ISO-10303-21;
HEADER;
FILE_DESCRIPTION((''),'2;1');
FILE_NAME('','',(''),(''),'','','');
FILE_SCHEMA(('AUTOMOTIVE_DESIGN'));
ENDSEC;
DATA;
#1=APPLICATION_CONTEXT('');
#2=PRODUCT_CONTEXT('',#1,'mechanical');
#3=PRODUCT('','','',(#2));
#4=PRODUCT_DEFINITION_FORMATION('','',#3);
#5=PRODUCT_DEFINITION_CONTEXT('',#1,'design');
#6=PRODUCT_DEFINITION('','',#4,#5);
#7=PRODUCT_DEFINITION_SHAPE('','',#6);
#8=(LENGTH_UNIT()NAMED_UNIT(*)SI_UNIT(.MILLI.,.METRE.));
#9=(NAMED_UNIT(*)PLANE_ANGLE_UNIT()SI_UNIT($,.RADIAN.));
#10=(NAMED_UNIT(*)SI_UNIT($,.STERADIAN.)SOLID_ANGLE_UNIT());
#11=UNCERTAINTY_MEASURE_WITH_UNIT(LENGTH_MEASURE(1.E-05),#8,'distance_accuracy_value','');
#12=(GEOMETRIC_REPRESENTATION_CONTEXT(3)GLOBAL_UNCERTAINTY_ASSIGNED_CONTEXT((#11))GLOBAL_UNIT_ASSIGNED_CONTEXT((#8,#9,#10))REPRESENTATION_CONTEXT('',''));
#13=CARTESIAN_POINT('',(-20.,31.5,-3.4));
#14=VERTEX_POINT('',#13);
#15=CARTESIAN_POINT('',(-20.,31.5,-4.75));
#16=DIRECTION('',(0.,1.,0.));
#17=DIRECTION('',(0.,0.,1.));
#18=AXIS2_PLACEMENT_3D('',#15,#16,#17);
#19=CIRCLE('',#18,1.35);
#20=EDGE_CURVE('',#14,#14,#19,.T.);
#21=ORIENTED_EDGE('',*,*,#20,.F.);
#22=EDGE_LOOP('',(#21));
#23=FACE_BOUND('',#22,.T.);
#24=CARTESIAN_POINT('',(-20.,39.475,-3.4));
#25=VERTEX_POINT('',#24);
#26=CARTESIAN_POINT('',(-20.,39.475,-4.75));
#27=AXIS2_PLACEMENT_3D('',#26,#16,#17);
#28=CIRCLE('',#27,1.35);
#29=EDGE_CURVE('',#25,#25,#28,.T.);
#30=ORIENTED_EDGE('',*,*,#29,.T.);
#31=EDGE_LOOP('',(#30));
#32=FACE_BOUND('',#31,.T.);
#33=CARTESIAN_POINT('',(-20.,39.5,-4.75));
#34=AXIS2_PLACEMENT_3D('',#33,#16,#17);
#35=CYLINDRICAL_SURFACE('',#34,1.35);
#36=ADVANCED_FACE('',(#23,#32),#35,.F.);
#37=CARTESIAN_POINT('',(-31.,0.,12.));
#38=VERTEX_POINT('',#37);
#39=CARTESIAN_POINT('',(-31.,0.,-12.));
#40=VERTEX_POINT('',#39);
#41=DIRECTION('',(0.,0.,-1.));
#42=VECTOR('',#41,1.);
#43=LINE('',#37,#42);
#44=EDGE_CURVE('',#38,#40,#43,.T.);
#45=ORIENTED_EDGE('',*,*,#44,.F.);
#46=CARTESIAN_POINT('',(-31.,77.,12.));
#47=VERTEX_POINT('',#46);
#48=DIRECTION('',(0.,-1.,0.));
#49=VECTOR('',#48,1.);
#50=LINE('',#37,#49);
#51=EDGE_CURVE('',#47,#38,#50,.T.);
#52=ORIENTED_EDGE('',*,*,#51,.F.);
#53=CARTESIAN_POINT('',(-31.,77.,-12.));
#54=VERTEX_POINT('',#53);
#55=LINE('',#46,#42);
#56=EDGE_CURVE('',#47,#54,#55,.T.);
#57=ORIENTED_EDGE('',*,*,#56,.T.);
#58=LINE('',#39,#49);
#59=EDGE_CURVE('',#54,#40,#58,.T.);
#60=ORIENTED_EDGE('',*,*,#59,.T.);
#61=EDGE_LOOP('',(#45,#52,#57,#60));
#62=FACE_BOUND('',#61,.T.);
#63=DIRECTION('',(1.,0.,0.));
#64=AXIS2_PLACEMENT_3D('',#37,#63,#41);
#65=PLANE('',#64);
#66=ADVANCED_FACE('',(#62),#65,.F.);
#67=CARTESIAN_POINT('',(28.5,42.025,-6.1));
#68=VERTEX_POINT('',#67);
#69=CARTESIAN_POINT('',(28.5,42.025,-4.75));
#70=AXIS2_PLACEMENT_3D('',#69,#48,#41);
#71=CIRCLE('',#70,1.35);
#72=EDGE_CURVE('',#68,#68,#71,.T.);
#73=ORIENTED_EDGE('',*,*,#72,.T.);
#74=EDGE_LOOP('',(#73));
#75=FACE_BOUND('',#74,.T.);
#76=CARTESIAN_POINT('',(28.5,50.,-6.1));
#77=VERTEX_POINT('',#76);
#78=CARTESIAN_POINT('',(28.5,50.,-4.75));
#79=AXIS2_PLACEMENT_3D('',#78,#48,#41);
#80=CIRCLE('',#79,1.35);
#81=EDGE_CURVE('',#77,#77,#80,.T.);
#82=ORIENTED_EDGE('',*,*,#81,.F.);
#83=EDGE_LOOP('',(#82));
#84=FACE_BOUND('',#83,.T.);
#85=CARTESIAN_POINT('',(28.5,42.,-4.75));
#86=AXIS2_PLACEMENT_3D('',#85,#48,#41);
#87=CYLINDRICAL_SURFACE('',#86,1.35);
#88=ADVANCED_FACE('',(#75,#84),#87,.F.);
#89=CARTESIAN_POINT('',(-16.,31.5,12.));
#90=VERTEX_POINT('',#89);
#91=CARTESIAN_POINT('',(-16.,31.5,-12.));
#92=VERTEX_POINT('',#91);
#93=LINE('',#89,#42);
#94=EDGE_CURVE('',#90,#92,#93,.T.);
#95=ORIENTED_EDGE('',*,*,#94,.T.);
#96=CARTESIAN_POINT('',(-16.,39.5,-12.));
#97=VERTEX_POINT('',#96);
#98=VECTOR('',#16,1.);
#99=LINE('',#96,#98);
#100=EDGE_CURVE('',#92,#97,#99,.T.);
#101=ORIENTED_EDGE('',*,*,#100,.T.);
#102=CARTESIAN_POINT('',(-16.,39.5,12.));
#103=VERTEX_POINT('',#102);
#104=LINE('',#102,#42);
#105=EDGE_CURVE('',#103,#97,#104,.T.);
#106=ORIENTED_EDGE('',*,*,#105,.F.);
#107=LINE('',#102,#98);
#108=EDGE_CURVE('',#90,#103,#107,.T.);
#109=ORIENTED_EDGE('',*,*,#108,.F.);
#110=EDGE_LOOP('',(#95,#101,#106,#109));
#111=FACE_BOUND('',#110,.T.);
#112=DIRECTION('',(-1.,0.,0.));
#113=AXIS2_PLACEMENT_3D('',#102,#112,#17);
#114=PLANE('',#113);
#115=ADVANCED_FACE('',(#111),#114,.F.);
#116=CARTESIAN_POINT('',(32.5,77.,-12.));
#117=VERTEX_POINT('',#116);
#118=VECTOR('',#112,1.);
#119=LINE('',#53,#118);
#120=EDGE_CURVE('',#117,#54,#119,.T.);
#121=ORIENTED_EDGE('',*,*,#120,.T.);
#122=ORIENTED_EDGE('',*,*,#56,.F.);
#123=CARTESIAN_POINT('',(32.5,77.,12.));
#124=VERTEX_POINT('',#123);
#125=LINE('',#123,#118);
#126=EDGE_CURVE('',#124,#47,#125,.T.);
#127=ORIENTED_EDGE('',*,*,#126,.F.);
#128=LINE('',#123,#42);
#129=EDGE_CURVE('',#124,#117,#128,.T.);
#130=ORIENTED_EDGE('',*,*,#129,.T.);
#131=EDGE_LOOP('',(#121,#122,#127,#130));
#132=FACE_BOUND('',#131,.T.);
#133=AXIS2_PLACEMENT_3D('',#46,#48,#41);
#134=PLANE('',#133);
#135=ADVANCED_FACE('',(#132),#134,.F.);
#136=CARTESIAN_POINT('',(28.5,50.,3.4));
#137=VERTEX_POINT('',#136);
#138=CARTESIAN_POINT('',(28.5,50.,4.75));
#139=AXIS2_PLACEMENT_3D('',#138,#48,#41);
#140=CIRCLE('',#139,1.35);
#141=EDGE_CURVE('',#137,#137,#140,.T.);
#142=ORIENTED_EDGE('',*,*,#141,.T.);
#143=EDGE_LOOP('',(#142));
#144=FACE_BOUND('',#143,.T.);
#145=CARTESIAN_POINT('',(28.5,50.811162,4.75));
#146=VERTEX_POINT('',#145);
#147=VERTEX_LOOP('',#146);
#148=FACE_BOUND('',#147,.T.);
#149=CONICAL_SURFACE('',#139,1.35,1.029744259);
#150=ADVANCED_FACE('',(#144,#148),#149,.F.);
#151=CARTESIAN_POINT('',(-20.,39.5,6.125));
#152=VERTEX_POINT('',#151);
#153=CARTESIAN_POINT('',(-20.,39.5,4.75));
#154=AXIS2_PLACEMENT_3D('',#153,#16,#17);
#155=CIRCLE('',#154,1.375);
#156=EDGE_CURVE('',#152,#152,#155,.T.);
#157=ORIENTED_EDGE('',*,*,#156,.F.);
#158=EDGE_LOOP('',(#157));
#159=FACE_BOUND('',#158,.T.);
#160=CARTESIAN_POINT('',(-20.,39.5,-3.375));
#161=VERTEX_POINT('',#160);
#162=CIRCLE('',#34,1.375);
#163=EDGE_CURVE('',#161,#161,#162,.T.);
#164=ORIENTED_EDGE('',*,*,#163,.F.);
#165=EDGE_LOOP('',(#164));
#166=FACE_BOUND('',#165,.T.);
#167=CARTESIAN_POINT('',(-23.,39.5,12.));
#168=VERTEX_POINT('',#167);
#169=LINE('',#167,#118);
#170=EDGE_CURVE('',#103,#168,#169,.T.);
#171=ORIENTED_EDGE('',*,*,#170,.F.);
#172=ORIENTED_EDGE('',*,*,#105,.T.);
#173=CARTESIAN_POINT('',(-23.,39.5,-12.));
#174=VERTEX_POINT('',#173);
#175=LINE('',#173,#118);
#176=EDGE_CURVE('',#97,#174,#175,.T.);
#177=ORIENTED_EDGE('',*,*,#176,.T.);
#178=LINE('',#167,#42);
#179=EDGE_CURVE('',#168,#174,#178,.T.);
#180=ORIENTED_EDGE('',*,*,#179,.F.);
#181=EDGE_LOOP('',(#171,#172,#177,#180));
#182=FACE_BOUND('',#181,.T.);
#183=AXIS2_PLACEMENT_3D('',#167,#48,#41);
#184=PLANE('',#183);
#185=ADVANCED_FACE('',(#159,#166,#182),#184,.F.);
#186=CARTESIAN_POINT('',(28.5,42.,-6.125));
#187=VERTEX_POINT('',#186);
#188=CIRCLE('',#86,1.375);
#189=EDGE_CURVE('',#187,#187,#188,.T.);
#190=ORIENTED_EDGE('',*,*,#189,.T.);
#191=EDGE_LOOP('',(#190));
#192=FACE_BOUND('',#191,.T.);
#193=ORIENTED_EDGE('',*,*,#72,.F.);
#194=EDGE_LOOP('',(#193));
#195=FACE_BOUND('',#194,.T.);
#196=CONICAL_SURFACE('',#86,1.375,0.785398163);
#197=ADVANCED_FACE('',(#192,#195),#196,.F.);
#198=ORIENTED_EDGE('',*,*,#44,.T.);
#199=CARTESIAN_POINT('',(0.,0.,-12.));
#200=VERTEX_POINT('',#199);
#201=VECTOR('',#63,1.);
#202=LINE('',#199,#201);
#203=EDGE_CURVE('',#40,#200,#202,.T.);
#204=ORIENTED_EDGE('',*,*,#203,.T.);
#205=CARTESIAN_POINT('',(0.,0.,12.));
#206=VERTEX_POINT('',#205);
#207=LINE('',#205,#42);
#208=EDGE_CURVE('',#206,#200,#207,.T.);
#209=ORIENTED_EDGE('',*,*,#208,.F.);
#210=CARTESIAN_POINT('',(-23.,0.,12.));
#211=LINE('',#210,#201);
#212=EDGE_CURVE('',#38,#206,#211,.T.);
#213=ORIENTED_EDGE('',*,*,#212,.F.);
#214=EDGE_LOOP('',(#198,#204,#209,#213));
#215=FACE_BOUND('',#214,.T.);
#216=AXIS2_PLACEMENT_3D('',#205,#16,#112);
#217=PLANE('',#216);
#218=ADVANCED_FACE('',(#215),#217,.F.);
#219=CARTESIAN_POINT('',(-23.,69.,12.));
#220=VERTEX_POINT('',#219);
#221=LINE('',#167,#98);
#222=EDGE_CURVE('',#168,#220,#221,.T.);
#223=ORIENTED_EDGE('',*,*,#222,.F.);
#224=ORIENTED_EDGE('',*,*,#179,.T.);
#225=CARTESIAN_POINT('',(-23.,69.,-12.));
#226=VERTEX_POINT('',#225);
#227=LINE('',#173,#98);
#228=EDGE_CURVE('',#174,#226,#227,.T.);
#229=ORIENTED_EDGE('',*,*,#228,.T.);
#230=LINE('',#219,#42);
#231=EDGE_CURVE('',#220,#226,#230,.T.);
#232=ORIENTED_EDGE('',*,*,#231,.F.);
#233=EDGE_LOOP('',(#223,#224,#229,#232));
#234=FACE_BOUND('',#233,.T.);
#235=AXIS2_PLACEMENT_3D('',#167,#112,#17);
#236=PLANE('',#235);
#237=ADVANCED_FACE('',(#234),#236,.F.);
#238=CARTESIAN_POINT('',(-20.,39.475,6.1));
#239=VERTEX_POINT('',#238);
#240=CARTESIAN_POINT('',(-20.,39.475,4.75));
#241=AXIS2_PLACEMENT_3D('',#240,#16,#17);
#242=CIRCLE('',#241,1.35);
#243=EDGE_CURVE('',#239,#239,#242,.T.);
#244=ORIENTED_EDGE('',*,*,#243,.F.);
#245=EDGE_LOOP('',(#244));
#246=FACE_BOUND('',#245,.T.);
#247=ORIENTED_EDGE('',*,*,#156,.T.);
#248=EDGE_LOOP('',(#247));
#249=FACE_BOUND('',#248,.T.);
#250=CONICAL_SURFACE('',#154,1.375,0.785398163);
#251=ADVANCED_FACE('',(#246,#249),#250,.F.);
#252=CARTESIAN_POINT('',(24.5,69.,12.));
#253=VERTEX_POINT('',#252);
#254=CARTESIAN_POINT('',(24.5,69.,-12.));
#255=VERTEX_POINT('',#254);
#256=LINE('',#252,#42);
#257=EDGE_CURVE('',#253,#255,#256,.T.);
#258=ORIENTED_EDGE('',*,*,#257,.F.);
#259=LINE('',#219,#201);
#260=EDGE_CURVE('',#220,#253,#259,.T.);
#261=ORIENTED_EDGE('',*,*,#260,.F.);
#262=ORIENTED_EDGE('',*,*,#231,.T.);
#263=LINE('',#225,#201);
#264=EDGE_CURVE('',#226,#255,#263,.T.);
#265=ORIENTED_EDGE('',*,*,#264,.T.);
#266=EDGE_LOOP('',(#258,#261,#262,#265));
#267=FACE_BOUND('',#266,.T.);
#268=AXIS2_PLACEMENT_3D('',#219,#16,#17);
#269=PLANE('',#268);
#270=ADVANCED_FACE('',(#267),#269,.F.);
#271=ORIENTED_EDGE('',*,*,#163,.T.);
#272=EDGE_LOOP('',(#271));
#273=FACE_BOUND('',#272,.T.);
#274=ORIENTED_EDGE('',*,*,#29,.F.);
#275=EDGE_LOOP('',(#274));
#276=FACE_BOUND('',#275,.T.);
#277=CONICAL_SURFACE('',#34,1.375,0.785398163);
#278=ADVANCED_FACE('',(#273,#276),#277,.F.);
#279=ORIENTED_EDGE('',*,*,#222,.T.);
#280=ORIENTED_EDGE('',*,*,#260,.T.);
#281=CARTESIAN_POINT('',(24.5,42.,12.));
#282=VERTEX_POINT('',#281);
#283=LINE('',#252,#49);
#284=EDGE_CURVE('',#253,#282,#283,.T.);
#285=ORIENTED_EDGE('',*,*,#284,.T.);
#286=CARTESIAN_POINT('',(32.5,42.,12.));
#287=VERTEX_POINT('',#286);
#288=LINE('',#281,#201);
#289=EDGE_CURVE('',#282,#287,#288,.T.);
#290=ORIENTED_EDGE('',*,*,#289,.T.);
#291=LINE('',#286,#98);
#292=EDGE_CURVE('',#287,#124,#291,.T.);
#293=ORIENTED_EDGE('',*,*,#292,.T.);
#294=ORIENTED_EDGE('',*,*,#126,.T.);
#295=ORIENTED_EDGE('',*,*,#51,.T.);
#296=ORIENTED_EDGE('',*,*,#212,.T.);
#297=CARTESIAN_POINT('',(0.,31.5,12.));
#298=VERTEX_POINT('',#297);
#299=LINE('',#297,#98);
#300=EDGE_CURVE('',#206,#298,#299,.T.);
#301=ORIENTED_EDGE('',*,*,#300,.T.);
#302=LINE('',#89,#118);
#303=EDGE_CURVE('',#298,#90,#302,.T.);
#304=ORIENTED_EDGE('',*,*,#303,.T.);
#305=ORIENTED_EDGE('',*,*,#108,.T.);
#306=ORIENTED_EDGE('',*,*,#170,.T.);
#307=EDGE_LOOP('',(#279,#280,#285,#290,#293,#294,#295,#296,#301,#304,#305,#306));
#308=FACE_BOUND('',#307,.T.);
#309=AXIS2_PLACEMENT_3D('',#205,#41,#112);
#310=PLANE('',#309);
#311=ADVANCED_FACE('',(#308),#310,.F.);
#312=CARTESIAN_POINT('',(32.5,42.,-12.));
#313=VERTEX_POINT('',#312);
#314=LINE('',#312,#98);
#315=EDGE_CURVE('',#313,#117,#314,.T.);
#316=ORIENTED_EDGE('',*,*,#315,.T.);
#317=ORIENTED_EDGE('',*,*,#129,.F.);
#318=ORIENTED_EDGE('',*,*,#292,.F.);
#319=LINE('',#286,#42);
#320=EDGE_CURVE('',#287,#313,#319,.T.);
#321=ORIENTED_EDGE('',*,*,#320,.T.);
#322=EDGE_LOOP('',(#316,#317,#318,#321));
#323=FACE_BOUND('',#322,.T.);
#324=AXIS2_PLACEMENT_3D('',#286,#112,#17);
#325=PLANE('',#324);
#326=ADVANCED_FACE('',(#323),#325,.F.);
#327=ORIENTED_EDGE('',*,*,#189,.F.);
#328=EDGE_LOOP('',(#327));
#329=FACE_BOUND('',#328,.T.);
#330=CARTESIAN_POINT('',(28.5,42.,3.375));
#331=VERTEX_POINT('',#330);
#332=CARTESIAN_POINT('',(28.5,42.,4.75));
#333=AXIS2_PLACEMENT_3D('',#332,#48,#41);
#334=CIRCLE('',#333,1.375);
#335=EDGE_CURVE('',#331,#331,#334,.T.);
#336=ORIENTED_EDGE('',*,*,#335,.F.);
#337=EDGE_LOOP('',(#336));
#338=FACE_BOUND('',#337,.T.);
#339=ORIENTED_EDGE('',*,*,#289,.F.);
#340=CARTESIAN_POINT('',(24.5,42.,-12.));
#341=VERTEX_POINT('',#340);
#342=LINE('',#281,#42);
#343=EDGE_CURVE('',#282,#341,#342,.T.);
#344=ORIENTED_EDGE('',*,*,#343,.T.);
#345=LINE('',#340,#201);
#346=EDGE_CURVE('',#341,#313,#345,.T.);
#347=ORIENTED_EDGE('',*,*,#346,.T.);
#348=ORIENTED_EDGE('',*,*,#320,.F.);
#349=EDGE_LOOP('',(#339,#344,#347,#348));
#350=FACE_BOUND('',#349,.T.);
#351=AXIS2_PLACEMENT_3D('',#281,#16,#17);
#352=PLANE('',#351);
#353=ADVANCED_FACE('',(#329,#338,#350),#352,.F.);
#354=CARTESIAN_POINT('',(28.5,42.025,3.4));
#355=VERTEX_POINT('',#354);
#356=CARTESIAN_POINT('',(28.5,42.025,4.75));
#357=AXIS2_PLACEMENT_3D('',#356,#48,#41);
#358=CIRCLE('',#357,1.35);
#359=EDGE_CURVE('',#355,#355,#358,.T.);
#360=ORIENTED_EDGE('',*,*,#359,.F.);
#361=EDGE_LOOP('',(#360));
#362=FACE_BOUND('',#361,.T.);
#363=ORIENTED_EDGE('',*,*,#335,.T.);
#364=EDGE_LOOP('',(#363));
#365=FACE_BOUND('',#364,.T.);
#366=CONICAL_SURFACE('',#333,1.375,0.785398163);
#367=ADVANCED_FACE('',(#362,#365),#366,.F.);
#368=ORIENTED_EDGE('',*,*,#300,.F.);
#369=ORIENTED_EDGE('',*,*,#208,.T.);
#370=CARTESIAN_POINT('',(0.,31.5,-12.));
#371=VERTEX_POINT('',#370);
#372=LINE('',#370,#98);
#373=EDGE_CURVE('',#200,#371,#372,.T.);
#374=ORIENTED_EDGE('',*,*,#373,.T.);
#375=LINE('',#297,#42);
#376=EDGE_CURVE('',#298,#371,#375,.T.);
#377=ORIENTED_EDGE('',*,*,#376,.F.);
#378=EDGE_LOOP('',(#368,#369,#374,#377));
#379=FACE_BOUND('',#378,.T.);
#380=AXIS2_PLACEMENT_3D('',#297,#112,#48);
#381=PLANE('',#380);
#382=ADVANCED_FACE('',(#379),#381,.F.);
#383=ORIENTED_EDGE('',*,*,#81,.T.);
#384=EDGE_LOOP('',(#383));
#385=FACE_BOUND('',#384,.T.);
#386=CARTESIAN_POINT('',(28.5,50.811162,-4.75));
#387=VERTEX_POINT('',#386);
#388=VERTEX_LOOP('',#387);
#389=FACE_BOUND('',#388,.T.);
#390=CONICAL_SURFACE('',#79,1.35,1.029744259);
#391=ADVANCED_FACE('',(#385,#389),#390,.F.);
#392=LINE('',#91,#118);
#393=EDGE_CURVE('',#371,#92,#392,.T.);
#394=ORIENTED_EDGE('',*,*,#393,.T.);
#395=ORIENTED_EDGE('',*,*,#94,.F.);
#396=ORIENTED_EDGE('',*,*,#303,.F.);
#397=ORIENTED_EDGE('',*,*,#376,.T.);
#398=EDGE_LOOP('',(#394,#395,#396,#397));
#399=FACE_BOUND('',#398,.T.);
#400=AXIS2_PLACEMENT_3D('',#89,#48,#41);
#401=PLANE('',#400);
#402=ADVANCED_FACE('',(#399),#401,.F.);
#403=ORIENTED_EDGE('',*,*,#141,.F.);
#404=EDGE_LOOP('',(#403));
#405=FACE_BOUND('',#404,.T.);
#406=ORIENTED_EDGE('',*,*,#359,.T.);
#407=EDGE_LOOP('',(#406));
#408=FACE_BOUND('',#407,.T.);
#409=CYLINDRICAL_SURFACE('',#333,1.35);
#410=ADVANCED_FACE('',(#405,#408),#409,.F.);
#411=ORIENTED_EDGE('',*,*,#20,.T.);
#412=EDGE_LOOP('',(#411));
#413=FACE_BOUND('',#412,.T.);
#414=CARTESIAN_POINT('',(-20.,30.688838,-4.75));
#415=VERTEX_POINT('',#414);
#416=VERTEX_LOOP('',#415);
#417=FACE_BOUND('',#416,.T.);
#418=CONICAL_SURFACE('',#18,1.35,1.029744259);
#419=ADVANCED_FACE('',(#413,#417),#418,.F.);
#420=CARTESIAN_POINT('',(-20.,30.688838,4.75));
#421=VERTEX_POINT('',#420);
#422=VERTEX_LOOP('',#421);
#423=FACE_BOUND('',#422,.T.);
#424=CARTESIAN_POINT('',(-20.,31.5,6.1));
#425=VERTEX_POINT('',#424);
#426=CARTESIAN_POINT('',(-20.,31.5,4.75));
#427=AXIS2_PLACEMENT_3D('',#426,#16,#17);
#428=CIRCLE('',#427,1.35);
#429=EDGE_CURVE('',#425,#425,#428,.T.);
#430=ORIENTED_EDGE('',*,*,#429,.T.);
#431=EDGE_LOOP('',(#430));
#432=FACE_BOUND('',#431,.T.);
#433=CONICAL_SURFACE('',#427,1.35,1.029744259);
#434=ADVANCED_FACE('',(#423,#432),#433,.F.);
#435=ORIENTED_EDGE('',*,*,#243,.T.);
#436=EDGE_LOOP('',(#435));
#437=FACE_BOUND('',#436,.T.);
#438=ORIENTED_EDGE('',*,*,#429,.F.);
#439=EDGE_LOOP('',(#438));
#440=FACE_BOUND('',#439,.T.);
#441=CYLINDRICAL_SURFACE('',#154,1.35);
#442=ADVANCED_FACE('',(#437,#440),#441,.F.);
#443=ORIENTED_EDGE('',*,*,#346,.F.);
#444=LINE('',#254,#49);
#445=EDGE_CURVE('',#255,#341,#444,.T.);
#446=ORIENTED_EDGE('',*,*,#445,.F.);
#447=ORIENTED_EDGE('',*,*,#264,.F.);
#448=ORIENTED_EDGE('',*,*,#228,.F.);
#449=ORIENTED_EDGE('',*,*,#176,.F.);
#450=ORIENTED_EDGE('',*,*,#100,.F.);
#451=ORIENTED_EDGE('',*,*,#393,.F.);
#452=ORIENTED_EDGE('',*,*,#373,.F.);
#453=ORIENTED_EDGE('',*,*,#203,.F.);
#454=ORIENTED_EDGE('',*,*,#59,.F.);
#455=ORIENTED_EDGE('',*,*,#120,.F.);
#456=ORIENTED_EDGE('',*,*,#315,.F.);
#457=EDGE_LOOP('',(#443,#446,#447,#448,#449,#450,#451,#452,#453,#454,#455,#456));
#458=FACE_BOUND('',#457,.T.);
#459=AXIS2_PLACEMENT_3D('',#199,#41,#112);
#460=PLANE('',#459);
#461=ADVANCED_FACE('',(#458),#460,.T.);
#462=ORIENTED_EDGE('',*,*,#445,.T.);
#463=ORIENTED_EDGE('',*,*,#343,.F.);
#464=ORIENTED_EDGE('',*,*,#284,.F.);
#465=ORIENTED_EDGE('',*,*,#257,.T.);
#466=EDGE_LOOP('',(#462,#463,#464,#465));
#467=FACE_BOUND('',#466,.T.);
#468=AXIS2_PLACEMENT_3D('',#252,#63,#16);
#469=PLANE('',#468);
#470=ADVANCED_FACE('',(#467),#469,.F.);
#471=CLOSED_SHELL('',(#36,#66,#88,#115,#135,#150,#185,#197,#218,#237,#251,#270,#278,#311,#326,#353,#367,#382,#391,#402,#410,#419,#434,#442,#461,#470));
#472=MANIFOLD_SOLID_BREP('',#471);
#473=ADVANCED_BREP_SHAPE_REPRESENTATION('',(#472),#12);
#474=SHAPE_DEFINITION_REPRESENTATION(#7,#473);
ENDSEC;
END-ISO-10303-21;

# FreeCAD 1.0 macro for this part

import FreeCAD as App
import Part
import Sketcher

V = App.Vector
Q = App.Units.Quantity

doc = App.newDocument("Part")
body = doc.addObject("PartDesign::Body", "Body")

sketch1 = body.newObject("Sketcher::SketchObject", "Sketch")
sketch1.AttachmentSupport = (doc.getObject("XY_Plane"), [""])
sketch1.MapMode = "FlatFace"
sketch1.addGeometry([
    Part.LineSegment(V(-31, 0, 0), V(0, 0, 0)),
    Part.LineSegment(V(0, 0, 0), V(0, 32, 0)),
    Part.LineSegment(V(0, 32, 0), V(-16, 32, 0)),
    Part.LineSegment(V(-16, 32, 0), V(-16, 40, 0)),
    Part.LineSegment(V(-16, 40, 0), V(-23, 40, 0)),
    Part.LineSegment(V(-23, 40, 0), V(-23, 69, 0)),
    Part.LineSegment(V(-23, 69, 0), V(24, 69, 0)),
    Part.LineSegment(V(24, 69, 0), V(24, 42, 0)),
    Part.LineSegment(V(24, 42, 0), V(32, 42, 0)),
    Part.LineSegment(V(32, 42, 0), V(32, 77, 0)),
    Part.LineSegment(V(32, 77, 0), V(-31, 77, 0)),
    Part.LineSegment(V(-31, 77, 0), V(-31, 0, 0)),
], False)
sketch1.addConstraint([
    Sketcher.Constraint("Coincident", 0, 2, 1, 1),
    Sketcher.Constraint("Coincident", 1, 2, 2, 1),
    Sketcher.Constraint("Coincident", 2, 2, 3, 1),
    Sketcher.Constraint("Coincident", 3, 2, 4, 1),
    Sketcher.Constraint("Coincident", 4, 2, 5, 1),
    Sketcher.Constraint("Coincident", 5, 2, 6, 1),
    Sketcher.Constraint("Coincident", 6, 2, 7, 1),
    Sketcher.Constraint("Coincident", 7, 2, 8, 1),
    Sketcher.Constraint("Coincident", 8, 2, 9, 1),
    Sketcher.Constraint("Coincident", 9, 2, 10, 1),
    Sketcher.Constraint("Coincident", 10, 2, 11, 1),
    Sketcher.Constraint("Coincident", 11, 2, 0, 1),
    Sketcher.Constraint("Horizontal", 0),
    Sketcher.Constraint("Vertical", 1),
    Sketcher.Constraint("Horizontal", 2),
    Sketcher.Constraint("Vertical", 3),
    Sketcher.Constraint("Horizontal", 4),
    Sketcher.Constraint("Vertical", 5),
    Sketcher.Constraint("Horizontal", 6),
    Sketcher.Constraint("Vertical", 7),
    Sketcher.Constraint("Horizontal", 8),
    Sketcher.Constraint("Vertical", 9),
    Sketcher.Constraint("Horizontal", 10),
    Sketcher.Constraint("Vertical", 11),
    Sketcher.Constraint("Coincident", 0, 2, -1, 1),
    Sketcher.Constraint("Equal", 8, 3),
    Sketcher.Constraint("DistanceX", 0, 1, 0, 2, Q("31 mm")),
    Sketcher.Constraint("DistanceX", 2, 2, 2, 1, Q("16 mm")),
    Sketcher.Constraint("DistanceX", 4, 2, 4, 1, Q("7 mm")),
    Sketcher.Constraint("DistanceX", 8, 1, 8, 2, Q("8 mm")),
    Sketcher.Constraint("DistanceY", 7, 2, 7, 1, Q("27 mm")),
    Sketcher.Constraint("DistanceY", 9, 1, 9, 2, Q("35 mm")),
    Sketcher.Constraint("DistanceY", 11, 2, 11, 1, Q("77 mm")),
    Sketcher.Constraint("DistanceX", 6, 1, 6, 2, Q("47.5 mm")),
    Sketcher.Constraint("DistanceY", 1, 1, 1, 2, Q("31.5 mm")),
])
pad1 = body.newObject("PartDesign::Pad", "Pad")
pad1.Profile = sketch1
pad1.Length = 24
pad1.Midplane = True

sketch2 = body.newObject("Sketcher::SketchObject", "Sketch001")
sketch2.AttachmentSupport = (doc.getObject("XZ_Plane"), [""])
sketch2.MapMode = "FlatFace"
sketch2.AttachmentOffset = App.Placement(V(0, 0, -39.5), App.Rotation())
sketch2.addGeometry([
    Part.Circle(V(-20, -4.8, 0), V(0, 0, 1), 1.4),
    Part.Circle(V(-20, 4.8, 0), V(0, 0, 1), 1.4),
], False)
sketch2.addConstraint([
    Sketcher.Constraint("Equal", 0, 1),
    Sketcher.Constraint("Symmetric", 0, 3, 1, 3, -1),
    Sketcher.Constraint("Diameter", 0, Q("2.7 mm")),
    Sketcher.Constraint("DistanceX", 0, 3, -1, 1, Q("20 mm")),
    Sketcher.Constraint("DistanceY", 0, 3, 1, 3, Q("9.5 mm")),
])
doc.recompute()
hole = body.newObject("PartDesign::Hole", "Hole")
hole.Profile = sketch2
hole.ThreadType = "None"
hole.Diameter = 2.7
hole.DepthType = "Dimension"
hole.Depth = 8
hole.DrillPoint = "Angled"
hole.DrillPointAngle = 118
hole.HoleCutType = "Countersink"
hole.HoleCutDiameter = 2.75
hole.HoleCutCountersinkAngle = 90
hole.Reversed = True

sketch3 = body.newObject("Sketcher::SketchObject", "Sketch002")
sketch3.AttachmentSupport = (doc.getObject("XZ_Plane"), [""])
sketch3.MapMode = "FlatFace"
sketch3.AttachmentOffset = App.Placement(V(0, 0, -42), App.Rotation())
sketch3.addGeometry([
    Part.Circle(V(28.5, -4.8, 0), V(0, 0, 1), 1.4),
    Part.Circle(V(28.5, 4.8, 0), V(0, 0, 1), 1.4),
], False)
sketch3.addConstraint([
    Sketcher.Constraint("Equal", 0, 1),
    Sketcher.Constraint("Symmetric", 0, 3, 1, 3, -1),
    Sketcher.Constraint("Diameter", 0, Q("2.7 mm")),
    Sketcher.Constraint("DistanceX", -1, 1, 0, 3, Q("28.5 mm")),
    Sketcher.Constraint("DistanceY", 0, 3, 1, 3, Q("9.5 mm")),
])
doc.recompute()
hole2 = body.newObject("PartDesign::Hole", "Hole001")
hole2.Profile = sketch3
hole2.ThreadType = "None"
hole2.Diameter = 2.7
hole2.DepthType = "Dimension"
hole2.Depth = 8
hole2.DrillPoint = "Angled"
hole2.DrillPointAngle = 118
hole2.HoleCutType = "Countersink"
hole2.HoleCutDiameter = 2.75
hole2.HoleCutCountersinkAngle = 90

doc.recompute()
